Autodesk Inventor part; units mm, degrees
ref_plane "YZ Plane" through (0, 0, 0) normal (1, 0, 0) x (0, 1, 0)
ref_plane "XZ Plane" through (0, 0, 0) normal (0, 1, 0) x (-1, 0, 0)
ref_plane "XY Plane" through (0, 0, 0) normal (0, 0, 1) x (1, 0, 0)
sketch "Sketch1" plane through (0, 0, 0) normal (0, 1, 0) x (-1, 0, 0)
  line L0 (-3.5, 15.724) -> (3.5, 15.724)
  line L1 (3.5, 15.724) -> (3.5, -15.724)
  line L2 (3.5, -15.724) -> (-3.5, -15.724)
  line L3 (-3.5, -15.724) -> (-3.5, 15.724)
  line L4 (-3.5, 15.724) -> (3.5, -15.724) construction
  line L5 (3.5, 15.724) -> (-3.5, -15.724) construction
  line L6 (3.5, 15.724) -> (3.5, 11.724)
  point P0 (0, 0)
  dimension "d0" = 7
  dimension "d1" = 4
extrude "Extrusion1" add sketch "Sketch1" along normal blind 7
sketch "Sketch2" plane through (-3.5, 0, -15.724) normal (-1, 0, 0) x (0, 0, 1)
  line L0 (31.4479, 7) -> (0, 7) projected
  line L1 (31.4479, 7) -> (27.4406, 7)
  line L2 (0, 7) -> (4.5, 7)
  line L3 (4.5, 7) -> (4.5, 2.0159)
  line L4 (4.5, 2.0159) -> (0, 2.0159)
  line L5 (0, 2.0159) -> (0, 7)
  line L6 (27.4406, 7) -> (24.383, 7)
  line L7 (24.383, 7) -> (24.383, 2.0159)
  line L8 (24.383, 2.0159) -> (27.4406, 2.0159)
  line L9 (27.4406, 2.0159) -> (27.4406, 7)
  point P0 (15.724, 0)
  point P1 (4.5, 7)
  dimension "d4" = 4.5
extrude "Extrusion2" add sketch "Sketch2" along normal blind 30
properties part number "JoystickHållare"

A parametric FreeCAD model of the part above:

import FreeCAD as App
import Part
import Sketcher

V = App.Vector

doc = App.newDocument("Part")
params = doc.addObject("Spreadsheet::Sheet", "Params")
for row, (alias, value) in enumerate([
    ("sketch1_width", "7 mm"),
    ("pad1_length", "7 mm"),
    ("sketch2_height", "4.5 mm"),
    ("pad2_length", "30 mm"),
], start=1):
    params.set(f"A{row}", alias)
    params.set(f"B{row}", "=" + value)
    params.setAlias(f"B{row}", alias)

body = doc.addObject("PartDesign::Body", "Body")

sketch1 = body.newObject("Sketcher::SketchObject", "Sketch")
sketch1.AttachmentSupport = (doc.getObject("XZ_Plane"), [""])
sketch1.MapMode = "FlatFace"
sketch1.addGeometry(Part.LineSegment(V(-4, 16, 0), V(4, 16, 0)), False)
sketch1.addGeometry(Part.LineSegment(V(4, 16, 0), V(4, -16, 0)), False)
sketch1.addGeometry(Part.LineSegment(V(4, -16, 0), V(-4, -16, 0)), False)
sketch1.addGeometry(Part.LineSegment(V(-4, -16, 0), V(-4, 16, 0)), False)
sketch1.addConstraint(Sketcher.Constraint("Coincident", 0, 2, 1, 1))
sketch1.addConstraint(Sketcher.Constraint("Coincident", 1, 2, 2, 1))
sketch1.addConstraint(Sketcher.Constraint("Coincident", 2, 2, 3, 1))
sketch1.addConstraint(Sketcher.Constraint("Coincident", 3, 2, 0, 1))
sketch1.addConstraint(Sketcher.Constraint("Horizontal", 0))
sketch1.addConstraint(Sketcher.Constraint("Vertical", 1))
sketch1.addConstraint(Sketcher.Constraint("Horizontal", 2))
sketch1.addConstraint(Sketcher.Constraint("Vertical", 3))
sketch1.addConstraint(Sketcher.Constraint("Symmetric", 0, 2, 2, 2, -1, 1))
sketch1.addConstraint(Sketcher.Constraint("DistanceX", 0, 1, 0, 2, 7.0))
sketch1.addConstraint(Sketcher.Constraint("DistanceY", 1, 2, 1, 1, 31.448))
sketch1.setExpression("Constraints[9]", "Params.sketch1_width")
pad1 = body.newObject("PartDesign::Pad", "Pad")
pad1.Profile = sketch1
pad1.setExpression("Length", "Params.pad1_length")
pad1.Reversed = True

sketch2 = body.newObject("Sketcher::SketchObject", "Sketch001")
sketch2.AttachmentSupport = (doc.getObject("YZ_Plane"), [""])
sketch2.MapMode = "FlatFace"
sketch2.AttachmentOffset = App.Placement(V(0, 0, -3.5), App.Rotation())
sketch2.addGeometry(Part.LineSegment(V(2, 11.7, 0), V(7, 11.7, 0)), False)
sketch2.addGeometry(Part.LineSegment(V(7, 11.7, 0), V(7, 8.7, 0)), False)
sketch2.addGeometry(Part.LineSegment(V(7, 8.7, 0), V(2, 8.7, 0)), False)
sketch2.addGeometry(Part.LineSegment(V(2, 8.7, 0), V(2, 11.7, 0)), False)
sketch2.addGeometry(Part.LineSegment(V(2, -11.2, 0), V(7, -11.2, 0)), False)
sketch2.addGeometry(Part.LineSegment(V(7, -11.2, 0), V(7, -15.7, 0)), False)
sketch2.addGeometry(Part.LineSegment(V(7, -15.7, 0), V(2, -15.7, 0)), False)
sketch2.addGeometry(Part.LineSegment(V(2, -15.7, 0), V(2, -11.2, 0)), False)
sketch2.addConstraint(Sketcher.Constraint("Coincident", 0, 2, 1, 1))
sketch2.addConstraint(Sketcher.Constraint("Coincident", 1, 2, 2, 1))
sketch2.addConstraint(Sketcher.Constraint("Coincident", 2, 2, 3, 1))
sketch2.addConstraint(Sketcher.Constraint("Coincident", 3, 2, 0, 1))
sketch2.addConstraint(Sketcher.Constraint("Coincident", 4, 2, 5, 1))
sketch2.addConstraint(Sketcher.Constraint("Coincident", 5, 2, 6, 1))
sketch2.addConstraint(Sketcher.Constraint("Coincident", 6, 2, 7, 1))
sketch2.addConstraint(Sketcher.Constraint("Coincident", 7, 2, 4, 1))
sketch2.addConstraint(Sketcher.Constraint("Horizontal", 0))
sketch2.addConstraint(Sketcher.Constraint("Vertical", 1))
sketch2.addConstraint(Sketcher.Constraint("Horizontal", 2))
sketch2.addConstraint(Sketcher.Constraint("Vertical", 3))
sketch2.addConstraint(Sketcher.Constraint("Horizontal", 4))
sketch2.addConstraint(Sketcher.Constraint("Vertical", 5))
sketch2.addConstraint(Sketcher.Constraint("Horizontal", 6))
sketch2.addConstraint(Sketcher.Constraint("Vertical", 7))
sketch2.addConstraint(Sketcher.Constraint("Vertical", 1, 2, 4, 2))
sketch2.addConstraint(Sketcher.Constraint("Vertical", 3, 2, 6, 2))
sketch2.addConstraint(Sketcher.Constraint("DistanceY", 5, 2, 5, 1, 4.5))
sketch2.addConstraint(Sketcher.Constraint("DistanceX", -1, 1, 0, 2, 7.0))
sketch2.addConstraint(Sketcher.Constraint("DistanceX", 0, 1, 0, 2, 4.984))
sketch2.addConstraint(Sketcher.Constraint("DistanceY", 1, 2, 1, 1, 3.0576))
sketch2.addConstraint(Sketcher.Constraint("DistanceY", -1, 1, 1, 2, 8.659))
sketch2.addConstraint(Sketcher.Constraint("DistanceY", 4, 2, -1, 1, 11.224))
sketch2.setExpression("Constraints[18]", "Params.sketch2_height")
pad2 = body.newObject("PartDesign::Pad", "Pad001")
pad2.Profile = sketch2
pad2.setExpression("Length", "Params.pad2_length")
pad2.Reversed = True

doc.recompute()
